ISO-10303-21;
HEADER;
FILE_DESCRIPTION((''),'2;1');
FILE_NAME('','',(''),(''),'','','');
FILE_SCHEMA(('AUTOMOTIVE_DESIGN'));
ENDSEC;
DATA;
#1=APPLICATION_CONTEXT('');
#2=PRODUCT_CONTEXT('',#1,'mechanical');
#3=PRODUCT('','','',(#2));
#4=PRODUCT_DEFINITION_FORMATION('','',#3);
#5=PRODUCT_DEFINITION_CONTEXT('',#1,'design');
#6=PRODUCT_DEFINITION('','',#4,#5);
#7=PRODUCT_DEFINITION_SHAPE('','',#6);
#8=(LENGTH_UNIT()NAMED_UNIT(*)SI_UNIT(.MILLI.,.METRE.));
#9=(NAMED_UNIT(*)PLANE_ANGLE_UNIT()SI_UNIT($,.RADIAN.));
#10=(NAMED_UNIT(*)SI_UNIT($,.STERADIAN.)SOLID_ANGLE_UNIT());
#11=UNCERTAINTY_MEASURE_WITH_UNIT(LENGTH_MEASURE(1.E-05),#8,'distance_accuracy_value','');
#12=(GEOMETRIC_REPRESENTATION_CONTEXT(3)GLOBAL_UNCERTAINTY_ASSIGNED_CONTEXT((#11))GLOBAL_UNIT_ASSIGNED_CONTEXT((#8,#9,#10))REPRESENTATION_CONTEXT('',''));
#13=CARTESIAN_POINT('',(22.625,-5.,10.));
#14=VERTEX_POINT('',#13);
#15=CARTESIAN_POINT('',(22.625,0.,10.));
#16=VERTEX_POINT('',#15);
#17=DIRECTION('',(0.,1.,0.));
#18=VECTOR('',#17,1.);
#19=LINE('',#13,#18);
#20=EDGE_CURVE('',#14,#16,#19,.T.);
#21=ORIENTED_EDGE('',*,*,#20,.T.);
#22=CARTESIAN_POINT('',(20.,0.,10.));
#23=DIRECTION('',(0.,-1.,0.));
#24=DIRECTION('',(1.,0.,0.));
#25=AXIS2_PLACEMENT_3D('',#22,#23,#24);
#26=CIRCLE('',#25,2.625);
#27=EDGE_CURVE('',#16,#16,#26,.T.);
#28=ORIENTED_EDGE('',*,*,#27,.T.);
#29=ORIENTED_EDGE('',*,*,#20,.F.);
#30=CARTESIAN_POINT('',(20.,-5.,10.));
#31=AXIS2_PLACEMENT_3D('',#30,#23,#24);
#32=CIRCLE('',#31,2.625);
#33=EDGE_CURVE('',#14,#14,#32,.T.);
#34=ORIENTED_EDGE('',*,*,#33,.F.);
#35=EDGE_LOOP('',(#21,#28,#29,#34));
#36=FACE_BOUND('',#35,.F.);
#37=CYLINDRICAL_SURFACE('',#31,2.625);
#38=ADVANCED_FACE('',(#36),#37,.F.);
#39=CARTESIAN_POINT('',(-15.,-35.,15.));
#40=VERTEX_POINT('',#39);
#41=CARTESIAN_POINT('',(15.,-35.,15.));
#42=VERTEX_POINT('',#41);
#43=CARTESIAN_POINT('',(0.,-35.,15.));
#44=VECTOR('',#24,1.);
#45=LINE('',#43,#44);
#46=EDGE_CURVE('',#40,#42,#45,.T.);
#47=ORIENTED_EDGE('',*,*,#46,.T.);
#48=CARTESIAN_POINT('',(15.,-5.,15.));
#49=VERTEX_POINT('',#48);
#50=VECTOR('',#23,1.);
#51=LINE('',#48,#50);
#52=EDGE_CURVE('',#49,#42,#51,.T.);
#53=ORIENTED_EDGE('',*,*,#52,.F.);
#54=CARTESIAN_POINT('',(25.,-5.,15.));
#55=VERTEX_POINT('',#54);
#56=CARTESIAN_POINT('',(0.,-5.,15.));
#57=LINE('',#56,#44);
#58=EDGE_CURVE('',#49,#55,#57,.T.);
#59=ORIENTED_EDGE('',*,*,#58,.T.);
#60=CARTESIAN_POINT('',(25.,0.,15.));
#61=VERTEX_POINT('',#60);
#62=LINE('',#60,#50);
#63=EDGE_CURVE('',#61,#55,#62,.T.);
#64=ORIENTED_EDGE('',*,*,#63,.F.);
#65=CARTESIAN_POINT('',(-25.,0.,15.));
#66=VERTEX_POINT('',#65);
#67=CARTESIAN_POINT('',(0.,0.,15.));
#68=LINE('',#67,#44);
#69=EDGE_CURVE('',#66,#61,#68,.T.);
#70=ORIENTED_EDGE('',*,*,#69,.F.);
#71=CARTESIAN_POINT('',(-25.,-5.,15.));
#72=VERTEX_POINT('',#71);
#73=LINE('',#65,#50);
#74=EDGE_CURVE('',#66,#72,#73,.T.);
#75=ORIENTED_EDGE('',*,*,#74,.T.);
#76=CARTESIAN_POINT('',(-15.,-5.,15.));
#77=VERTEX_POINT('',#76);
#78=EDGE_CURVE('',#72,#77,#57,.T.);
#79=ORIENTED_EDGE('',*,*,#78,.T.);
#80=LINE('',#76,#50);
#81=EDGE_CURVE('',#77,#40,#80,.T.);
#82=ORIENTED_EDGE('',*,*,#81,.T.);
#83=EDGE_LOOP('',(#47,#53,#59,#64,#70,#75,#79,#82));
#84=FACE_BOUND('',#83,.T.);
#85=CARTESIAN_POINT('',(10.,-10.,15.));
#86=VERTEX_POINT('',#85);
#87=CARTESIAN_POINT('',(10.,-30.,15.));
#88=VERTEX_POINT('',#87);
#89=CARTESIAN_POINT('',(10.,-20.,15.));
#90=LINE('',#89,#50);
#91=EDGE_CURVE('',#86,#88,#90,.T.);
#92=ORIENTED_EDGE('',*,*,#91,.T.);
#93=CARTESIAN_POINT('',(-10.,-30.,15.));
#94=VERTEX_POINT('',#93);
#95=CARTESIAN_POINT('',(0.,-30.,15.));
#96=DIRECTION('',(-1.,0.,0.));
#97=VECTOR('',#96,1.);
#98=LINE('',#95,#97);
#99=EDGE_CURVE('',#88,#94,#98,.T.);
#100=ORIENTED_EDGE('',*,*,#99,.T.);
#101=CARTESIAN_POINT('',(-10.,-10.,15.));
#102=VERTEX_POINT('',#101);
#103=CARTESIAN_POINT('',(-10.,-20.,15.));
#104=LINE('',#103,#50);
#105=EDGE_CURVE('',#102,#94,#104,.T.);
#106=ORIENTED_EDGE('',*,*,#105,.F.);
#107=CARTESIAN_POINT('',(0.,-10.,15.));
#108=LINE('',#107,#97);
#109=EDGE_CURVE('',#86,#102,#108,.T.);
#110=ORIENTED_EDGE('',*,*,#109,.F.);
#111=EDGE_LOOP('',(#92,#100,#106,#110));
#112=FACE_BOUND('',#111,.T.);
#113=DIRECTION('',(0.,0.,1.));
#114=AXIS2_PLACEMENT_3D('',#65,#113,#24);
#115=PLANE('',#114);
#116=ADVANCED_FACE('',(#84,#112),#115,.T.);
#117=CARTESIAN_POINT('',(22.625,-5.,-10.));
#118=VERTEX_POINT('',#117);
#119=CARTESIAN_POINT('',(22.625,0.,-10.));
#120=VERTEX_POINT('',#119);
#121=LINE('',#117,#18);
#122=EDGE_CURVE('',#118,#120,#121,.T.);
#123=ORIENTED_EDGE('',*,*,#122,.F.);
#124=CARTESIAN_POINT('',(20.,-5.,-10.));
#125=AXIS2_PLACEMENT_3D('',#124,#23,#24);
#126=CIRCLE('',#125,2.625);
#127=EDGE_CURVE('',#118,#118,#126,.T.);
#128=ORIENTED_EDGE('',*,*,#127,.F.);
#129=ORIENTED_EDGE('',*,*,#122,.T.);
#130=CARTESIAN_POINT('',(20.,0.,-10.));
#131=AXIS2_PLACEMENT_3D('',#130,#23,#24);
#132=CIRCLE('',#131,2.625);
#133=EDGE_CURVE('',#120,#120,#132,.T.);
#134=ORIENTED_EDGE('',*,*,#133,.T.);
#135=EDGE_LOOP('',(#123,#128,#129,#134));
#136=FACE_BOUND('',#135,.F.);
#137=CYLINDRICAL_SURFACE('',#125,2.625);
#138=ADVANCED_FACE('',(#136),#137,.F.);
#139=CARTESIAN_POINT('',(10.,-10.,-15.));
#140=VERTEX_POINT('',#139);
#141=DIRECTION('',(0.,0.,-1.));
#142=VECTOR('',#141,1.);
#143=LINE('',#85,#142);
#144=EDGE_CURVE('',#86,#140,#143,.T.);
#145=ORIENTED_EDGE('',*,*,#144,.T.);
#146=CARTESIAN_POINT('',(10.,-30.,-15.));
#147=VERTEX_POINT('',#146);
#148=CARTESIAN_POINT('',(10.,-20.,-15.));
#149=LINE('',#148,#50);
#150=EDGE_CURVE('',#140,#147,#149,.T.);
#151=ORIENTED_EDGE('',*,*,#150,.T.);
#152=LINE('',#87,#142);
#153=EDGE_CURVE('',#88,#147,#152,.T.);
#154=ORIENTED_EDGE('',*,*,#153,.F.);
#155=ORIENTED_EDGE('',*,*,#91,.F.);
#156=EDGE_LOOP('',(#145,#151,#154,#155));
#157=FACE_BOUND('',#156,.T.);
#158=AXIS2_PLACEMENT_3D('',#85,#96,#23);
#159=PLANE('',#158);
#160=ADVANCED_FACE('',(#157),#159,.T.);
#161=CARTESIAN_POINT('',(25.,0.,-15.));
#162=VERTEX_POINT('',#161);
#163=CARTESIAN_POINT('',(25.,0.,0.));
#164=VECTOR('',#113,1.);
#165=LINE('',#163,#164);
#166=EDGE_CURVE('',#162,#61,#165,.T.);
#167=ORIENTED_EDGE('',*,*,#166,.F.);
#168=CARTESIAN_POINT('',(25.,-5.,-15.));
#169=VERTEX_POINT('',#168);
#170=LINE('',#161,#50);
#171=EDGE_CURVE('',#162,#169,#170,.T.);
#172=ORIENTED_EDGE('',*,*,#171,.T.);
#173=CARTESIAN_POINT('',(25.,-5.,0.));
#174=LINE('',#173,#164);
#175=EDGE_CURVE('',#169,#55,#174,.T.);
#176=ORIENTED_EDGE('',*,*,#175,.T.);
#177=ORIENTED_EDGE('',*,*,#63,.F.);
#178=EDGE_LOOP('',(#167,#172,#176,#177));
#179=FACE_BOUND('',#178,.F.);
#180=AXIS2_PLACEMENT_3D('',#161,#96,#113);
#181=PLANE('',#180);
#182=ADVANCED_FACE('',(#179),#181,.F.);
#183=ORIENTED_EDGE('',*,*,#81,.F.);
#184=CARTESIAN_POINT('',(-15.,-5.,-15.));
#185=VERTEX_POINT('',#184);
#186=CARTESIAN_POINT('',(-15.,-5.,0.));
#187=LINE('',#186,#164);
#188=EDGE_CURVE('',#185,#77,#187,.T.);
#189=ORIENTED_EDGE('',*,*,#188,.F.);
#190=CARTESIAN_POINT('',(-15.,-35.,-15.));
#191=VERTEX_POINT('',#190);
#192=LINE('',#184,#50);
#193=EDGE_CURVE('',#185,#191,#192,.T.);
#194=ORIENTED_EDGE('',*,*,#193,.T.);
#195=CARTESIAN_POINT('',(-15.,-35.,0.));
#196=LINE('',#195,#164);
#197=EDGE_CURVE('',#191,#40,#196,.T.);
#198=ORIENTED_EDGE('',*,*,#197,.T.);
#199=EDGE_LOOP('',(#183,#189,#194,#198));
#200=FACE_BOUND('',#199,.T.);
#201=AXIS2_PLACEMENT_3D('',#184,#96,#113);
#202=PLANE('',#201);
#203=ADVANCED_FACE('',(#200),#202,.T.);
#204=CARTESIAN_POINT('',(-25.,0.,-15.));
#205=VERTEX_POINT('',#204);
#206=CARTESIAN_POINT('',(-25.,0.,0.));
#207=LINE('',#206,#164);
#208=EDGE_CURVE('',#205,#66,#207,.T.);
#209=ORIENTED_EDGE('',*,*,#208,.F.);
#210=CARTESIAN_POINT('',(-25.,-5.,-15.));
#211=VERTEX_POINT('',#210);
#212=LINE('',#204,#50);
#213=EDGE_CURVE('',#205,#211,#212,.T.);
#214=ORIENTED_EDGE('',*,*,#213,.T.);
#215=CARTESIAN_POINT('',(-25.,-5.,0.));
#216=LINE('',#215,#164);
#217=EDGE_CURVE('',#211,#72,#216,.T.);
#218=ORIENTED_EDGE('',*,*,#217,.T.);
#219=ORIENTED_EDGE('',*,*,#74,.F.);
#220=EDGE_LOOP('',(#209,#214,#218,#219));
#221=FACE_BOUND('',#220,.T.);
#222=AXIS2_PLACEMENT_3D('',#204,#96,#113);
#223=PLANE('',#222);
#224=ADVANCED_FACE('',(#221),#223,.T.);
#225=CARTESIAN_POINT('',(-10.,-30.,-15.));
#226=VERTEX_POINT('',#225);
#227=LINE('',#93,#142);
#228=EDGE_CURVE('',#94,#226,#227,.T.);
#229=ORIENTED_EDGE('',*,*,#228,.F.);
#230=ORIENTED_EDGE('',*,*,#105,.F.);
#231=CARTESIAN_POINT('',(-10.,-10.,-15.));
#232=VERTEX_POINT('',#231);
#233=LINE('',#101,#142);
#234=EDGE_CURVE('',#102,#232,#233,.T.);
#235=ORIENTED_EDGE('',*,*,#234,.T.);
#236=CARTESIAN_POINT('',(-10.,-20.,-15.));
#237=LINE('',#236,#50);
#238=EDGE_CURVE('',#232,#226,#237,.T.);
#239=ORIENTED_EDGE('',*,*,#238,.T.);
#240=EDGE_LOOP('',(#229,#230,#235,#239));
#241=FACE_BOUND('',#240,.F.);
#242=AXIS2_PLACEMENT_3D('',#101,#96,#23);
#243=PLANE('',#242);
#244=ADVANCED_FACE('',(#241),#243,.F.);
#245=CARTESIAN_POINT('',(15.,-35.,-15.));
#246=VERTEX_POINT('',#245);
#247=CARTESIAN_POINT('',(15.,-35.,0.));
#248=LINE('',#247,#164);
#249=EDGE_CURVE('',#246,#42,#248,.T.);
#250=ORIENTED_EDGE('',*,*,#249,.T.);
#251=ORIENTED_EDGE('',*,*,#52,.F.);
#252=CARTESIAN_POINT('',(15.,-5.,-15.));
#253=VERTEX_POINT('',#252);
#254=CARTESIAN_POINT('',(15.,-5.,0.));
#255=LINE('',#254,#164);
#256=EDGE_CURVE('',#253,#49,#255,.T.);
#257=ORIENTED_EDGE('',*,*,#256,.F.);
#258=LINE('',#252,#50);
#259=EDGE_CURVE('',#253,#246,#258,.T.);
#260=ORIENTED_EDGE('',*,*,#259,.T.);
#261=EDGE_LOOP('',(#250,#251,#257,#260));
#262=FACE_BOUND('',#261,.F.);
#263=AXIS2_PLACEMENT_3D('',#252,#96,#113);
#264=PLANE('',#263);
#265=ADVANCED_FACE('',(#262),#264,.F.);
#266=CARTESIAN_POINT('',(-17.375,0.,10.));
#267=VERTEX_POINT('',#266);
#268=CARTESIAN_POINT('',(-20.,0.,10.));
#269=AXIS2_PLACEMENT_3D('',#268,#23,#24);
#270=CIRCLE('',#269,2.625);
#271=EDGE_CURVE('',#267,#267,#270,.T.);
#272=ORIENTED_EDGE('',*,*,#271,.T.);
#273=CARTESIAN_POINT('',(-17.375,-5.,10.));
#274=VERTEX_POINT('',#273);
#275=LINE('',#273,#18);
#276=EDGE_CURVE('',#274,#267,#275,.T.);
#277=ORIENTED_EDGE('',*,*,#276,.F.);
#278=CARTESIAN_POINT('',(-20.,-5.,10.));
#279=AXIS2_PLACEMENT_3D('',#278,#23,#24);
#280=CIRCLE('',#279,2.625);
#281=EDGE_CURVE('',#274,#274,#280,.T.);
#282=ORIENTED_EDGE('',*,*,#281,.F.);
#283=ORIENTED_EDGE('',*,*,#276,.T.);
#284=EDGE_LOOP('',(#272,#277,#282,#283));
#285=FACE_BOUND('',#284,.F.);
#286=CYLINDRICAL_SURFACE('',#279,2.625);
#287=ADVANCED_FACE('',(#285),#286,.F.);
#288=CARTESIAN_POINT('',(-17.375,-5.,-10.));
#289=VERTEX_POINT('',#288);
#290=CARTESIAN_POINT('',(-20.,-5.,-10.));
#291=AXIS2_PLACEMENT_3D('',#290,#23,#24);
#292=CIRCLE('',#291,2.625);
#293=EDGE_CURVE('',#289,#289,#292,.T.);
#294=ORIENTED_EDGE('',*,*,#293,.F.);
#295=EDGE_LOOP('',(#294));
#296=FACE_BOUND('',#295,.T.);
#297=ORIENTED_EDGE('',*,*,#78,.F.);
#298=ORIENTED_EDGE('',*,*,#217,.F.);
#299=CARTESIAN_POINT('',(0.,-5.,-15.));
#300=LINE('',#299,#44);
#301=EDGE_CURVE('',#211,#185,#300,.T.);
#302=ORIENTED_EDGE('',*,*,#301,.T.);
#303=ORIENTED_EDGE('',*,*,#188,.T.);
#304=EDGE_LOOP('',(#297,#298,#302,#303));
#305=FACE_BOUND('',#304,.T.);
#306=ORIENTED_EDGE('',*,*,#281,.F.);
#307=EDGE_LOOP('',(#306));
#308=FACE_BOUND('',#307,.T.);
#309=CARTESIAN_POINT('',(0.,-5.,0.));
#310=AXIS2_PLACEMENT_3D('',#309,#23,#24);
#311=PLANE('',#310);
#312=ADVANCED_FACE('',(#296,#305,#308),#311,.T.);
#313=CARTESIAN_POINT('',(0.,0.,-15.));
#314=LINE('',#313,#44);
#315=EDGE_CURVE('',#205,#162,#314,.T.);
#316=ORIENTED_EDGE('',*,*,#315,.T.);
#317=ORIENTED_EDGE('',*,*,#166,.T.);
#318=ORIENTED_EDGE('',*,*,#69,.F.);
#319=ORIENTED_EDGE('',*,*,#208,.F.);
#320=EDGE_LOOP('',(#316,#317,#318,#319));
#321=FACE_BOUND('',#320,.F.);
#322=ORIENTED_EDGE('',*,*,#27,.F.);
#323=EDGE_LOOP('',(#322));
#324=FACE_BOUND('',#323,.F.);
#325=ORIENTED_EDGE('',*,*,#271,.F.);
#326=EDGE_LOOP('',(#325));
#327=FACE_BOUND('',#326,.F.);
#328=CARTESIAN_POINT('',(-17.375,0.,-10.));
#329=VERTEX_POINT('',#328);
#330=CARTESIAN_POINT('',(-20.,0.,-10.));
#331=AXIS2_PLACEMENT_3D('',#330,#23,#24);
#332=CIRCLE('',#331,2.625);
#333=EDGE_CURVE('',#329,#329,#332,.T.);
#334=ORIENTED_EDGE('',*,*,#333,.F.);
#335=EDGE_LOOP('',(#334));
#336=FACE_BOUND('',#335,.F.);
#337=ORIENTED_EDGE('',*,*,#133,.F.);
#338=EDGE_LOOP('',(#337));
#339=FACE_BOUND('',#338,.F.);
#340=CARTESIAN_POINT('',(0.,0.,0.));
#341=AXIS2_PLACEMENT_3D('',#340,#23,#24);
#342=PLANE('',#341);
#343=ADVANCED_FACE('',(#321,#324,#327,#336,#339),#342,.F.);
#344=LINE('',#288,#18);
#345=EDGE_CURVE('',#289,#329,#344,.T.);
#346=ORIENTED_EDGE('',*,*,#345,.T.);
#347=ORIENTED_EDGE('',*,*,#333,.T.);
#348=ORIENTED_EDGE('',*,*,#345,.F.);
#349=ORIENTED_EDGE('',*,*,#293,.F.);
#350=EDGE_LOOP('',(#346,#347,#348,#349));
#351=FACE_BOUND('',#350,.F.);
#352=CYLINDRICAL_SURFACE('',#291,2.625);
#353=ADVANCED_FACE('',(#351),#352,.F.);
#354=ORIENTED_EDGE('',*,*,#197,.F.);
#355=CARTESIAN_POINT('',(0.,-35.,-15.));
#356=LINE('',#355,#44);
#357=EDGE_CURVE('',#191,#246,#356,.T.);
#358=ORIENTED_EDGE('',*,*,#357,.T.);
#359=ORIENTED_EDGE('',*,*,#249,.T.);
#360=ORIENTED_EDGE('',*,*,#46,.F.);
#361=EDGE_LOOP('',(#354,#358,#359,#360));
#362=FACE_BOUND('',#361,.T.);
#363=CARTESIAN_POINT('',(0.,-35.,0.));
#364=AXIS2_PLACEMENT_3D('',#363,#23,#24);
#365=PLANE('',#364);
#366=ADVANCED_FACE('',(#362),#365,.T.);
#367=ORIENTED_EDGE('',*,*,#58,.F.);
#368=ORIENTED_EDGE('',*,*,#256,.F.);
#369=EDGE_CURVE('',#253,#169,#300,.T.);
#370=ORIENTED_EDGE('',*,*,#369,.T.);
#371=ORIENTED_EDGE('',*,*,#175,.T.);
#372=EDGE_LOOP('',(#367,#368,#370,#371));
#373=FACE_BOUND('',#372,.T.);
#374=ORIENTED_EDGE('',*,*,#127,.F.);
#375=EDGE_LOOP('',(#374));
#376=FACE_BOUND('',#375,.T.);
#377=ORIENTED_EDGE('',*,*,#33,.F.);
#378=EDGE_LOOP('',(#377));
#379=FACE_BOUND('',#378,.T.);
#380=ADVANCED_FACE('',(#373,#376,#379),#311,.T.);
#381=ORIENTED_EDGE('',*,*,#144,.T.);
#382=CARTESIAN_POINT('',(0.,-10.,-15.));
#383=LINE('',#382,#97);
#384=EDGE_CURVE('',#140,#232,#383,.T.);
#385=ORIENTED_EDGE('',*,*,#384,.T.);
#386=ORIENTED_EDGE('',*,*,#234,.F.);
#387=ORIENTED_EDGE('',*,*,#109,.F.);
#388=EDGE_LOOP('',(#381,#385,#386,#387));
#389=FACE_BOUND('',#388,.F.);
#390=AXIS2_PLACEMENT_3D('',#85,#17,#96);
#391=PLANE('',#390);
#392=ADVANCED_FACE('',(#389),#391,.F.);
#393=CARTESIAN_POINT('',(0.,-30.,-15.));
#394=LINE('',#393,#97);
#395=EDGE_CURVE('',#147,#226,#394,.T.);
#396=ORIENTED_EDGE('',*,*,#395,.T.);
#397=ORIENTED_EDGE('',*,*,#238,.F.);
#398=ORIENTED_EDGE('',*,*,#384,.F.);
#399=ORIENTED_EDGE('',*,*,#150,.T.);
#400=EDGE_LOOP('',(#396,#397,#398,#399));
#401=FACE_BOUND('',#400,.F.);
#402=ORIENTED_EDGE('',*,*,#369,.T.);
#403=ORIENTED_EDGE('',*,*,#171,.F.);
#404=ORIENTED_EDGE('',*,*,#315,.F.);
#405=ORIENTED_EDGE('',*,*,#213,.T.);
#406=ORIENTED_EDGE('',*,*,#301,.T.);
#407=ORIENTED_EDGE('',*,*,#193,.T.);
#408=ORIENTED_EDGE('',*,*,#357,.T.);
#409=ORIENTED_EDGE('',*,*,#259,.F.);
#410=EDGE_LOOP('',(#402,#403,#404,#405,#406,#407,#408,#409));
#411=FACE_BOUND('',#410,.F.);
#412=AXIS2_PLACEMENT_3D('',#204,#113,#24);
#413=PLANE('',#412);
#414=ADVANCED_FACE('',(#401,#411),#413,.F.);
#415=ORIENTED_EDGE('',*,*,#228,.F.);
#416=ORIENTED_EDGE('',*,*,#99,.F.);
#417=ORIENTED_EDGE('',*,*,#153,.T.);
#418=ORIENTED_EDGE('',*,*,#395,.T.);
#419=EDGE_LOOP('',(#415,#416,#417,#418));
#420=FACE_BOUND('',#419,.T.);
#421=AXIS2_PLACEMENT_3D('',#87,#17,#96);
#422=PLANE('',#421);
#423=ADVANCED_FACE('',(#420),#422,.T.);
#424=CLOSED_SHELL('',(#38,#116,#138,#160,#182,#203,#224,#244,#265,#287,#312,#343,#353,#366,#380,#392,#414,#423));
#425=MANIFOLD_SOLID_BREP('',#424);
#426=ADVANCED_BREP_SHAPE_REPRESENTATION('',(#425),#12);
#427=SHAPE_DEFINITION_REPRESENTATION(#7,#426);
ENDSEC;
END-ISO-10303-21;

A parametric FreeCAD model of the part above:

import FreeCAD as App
import Part
import Sketcher

doc = App.newDocument("Part")
body = doc.addObject("PartDesign::Body", "Body")

# Sketch on XZ plane
sketch1 = body.newObject("Sketcher::SketchObject", "Sketch")
sketch1.AttachmentSupport = (doc.getObject("XZ_Plane"), [""])
sketch1.MapMode = "FlatFace"
sketch1.addGeometry([
    Part.LineSegment(App.Vector(-25, 15, 0), App.Vector(-25, -15, 0)),
    Part.LineSegment(App.Vector(-25, -15, 0), App.Vector(25, -15, 0)),
    Part.LineSegment(App.Vector(25, -15, 0), App.Vector(25, 15, 0)),
    Part.LineSegment(App.Vector(25, 15, 0), App.Vector(-25, 15, 0)),
], False)
sketch1.addConstraint([
    Sketcher.Constraint("Coincident", 0, 2, 1, 1),
    Sketcher.Constraint("Coincident", 1, 2, 2, 1),
    Sketcher.Constraint("Coincident", 2, 2, 3, 1),
    Sketcher.Constraint("Coincident", 3, 2, 0, 1),
    Sketcher.Constraint("Vertical", 0),
    Sketcher.Constraint("Horizontal", 1),
    Sketcher.Constraint("Vertical", 2),
    Sketcher.Constraint("Horizontal", 3),
    Sketcher.Constraint("Symmetric", 0, 2, 2, 2, -1, 1),
    Sketcher.Constraint("DistanceX", 1, 1, 1, 2, 50.0),
    Sketcher.Constraint("DistanceY", 0, 2, 0, 1, 30.0),
])
pad1 = body.newObject("PartDesign::Pad", "Pad")
pad1.Profile = sketch1
pad1.Length = 5

# Sketch on XZ plane
sketch2 = body.newObject("Sketcher::SketchObject", "Sketch001")
sketch2.AttachmentSupport = (doc.getObject("XZ_Plane"), [""])
sketch2.MapMode = "FlatFace"
sketch2.AttachmentOffset = App.Placement(App.Vector(0, 0, 5), App.Rotation())
sketch2.addGeometry([
    Part.Circle(App.Vector(-20, 10, 0), App.Vector(0, 0, 1), 2.6),
    Part.Circle(App.Vector(20, 10, 0), App.Vector(0, 0, 1), 2.6),
    Part.Circle(App.Vector(20, -10, 0), App.Vector(0, 0, 1), 2.6),
    Part.Circle(App.Vector(-20, -10, 0), App.Vector(0, 0, 1), 2.6),
], False)
sketch2.addConstraint([
    Sketcher.Constraint("Equal", 0, 1),
    Sketcher.Constraint("Equal", 1, 2),
    Sketcher.Constraint("Equal", 2, 3),
    Sketcher.Constraint("Symmetric", 0, 3, 2, 3, -1, 1),
    Sketcher.Constraint("Symmetric", 1, 3, 3, 3, -1, 1),
    Sketcher.Constraint("Symmetric", 0, 3, 1, 3, -2),
    Sketcher.Constraint("Diameter", 0, 5.25),
    Sketcher.Constraint("DistanceX", 0, 3, -1, 1, 20.0),
    Sketcher.Constraint("DistanceY", -1, 1, 0, 3, 10.0),
])
pocket1 = body.newObject("PartDesign::Pocket", "Pocket")
pocket1.Profile = sketch2
pocket1.Length = 5

# Sketch on XZ plane
sketch3 = body.newObject("Sketcher::SketchObject", "Sketch002")
sketch3.AttachmentSupport = (doc.getObject("XZ_Plane"), [""])
sketch3.MapMode = "FlatFace"
sketch3.AttachmentOffset = App.Placement(App.Vector(0, 0, 5), App.Rotation())
sketch3.addGeometry([
    Part.LineSegment(App.Vector(-15, 15, 0), App.Vector(-15, -15, 0)),
    Part.LineSegment(App.Vector(-15, -15, 0), App.Vector(15, -15, 0)),
    Part.LineSegment(App.Vector(15, -15, 0), App.Vector(15, 15, 0)),
    Part.LineSegment(App.Vector(15, 15, 0), App.Vector(-15, 15, 0)),
], False)
sketch3.addConstraint([
    Sketcher.Constraint("Coincident", 0, 2, 1, 1),
    Sketcher.Constraint("Coincident", 1, 2, 2, 1),
    Sketcher.Constraint("Coincident", 2, 2, 3, 1),
    Sketcher.Constraint("Coincident", 3, 2, 0, 1),
    Sketcher.Constraint("Vertical", 0),
    Sketcher.Constraint("Horizontal", 1),
    Sketcher.Constraint("Vertical", 2),
    Sketcher.Constraint("Horizontal", 3),
    Sketcher.Constraint("Symmetric", 0, 2, 2, 2, -1, 1),
    Sketcher.Constraint("Equal", 3, 0),
    Sketcher.Constraint("DistanceX", 1, 1, 1, 2, 30.0),
])
pad2 = body.newObject("PartDesign::Pad", "Pad001")
pad2.Profile = sketch3
pad2.Length = 30

# Sketch on XY plane
sketch4 = body.newObject("Sketcher::SketchObject", "Sketch003")
sketch4.AttachmentSupport = (doc.getObject("XY_Plane"), [""])
sketch4.MapMode = "FlatFace"
sketch4.AttachmentOffset = App.Placement(App.Vector(0, 0, 15), App.Rotation())
sketch4.addGeometry([
    Part.LineSegment(App.Vector(10, -30, 0), App.Vector(10, -10, 0)),
    Part.LineSegment(App.Vector(10, -10, 0), App.Vector(-10, -10, 0)),
    Part.LineSegment(App.Vector(-10, -10, 0), App.Vector(-10, -30, 0)),
    Part.LineSegment(App.Vector(-10, -30, 0), App.Vector(10, -30, 0)),
], False)
sketch4.addConstraint([
    Sketcher.Constraint("Coincident", 0, 2, 1, 1),
    Sketcher.Constraint("Coincident", 1, 2, 2, 1),
    Sketcher.Constraint("Coincident", 2, 2, 3, 1),
    Sketcher.Constraint("Coincident", 3, 2, 0, 1),
    Sketcher.Constraint("Vertical", 0),
    Sketcher.Constraint("Horizontal", 1),
    Sketcher.Constraint("Vertical", 2),
    Sketcher.Constraint("Horizontal", 3),
    Sketcher.Constraint("Equal", 3, 0),
    Sketcher.Constraint("DistanceX", 1, 2, 1, 1, 20.0),
    Sketcher.Constraint("DistanceX", -1, 1, 0, 2, 10.0),
    Sketcher.Constraint("DistanceY", 0, 2, -1, 1, 10.0),
])
pocket2 = body.newObject("PartDesign::Pocket", "Pocket001")
pocket2.Profile = sketch4
pocket2.Length = 30

doc.recompute()
